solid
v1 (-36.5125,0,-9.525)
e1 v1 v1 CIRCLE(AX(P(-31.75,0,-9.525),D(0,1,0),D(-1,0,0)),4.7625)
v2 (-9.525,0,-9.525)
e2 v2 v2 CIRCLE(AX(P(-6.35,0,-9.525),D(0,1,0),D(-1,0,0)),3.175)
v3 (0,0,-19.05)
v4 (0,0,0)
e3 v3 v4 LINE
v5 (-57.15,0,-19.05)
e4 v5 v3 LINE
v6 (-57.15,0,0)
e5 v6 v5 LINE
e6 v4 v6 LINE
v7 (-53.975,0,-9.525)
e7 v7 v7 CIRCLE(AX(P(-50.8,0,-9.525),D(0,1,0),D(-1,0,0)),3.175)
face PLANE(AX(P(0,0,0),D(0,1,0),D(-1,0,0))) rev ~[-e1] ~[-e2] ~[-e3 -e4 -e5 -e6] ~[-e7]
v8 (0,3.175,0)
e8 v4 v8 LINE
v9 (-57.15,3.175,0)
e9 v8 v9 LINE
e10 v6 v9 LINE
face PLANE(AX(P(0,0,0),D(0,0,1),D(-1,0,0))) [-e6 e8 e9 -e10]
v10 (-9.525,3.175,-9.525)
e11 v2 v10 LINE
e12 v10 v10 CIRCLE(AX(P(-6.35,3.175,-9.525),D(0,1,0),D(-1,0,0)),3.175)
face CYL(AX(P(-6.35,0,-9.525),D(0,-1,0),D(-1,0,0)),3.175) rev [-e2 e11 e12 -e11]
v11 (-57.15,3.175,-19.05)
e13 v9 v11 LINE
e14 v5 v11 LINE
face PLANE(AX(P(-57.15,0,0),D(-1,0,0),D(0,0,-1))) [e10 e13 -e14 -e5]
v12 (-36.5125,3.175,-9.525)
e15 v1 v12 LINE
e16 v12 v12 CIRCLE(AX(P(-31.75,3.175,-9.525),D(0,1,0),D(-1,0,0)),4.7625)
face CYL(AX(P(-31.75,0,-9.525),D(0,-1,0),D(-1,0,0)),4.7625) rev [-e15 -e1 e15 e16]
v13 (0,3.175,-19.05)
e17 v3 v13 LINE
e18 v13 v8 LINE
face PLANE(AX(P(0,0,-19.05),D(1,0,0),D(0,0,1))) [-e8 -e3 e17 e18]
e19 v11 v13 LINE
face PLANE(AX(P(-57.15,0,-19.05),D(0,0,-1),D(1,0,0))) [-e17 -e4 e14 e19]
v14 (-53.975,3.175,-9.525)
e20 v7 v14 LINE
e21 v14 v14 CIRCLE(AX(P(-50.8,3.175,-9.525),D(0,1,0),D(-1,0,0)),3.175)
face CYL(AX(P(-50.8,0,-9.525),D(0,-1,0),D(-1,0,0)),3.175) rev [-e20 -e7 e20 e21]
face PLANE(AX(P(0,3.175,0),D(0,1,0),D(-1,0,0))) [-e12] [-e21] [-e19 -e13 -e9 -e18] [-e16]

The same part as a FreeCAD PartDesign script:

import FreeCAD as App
import Part
import Sketcher

V = App.Vector
Q = App.Units.Quantity


def add_polygon(sketch, points):
    """Adds a closed chain of lines whose ends are joined by coincident constraints."""
    first, n = sketch.GeometryCount, len(points)
    for a, b in zip(points, points[1:] + points[:1]):
        sketch.addGeometry(Part.LineSegment(App.Vector(*a, 0), App.Vector(*b, 0)), False)
    for i in range(n):
        sketch.addConstraint(Sketcher.Constraint("Coincident", first + i, 2, first + (i + 1) % n, 1))

doc = App.newDocument("Part")
body = doc.addObject("PartDesign::Body", "Body")

sketch1 = body.newObject("Sketcher::SketchObject", "Sketch")
sketch1.AttachmentSupport = (doc.getObject("XZ_Plane"), [""])
sketch1.MapMode = "FlatFace"
add_polygon(sketch1, [(-57.15, 0), (0, 0), (0, -19.05), (-57.15, -19.05)])
sketch1.addGeometry(Part.Circle(V(-6.35, -9.525, 0), V(0, 0, 1), 3.175), False)
sketch1.addGeometry(Part.Circle(V(-50.8, -9.525, 0), V(0, 0, 1), 3.175), False)
sketch1.addConstraint([
    Sketcher.Constraint("Horizontal", 0),
    Sketcher.Constraint("Vertical", 1),
    Sketcher.Constraint("Horizontal", 2),
    Sketcher.Constraint("Vertical", 3),
    Sketcher.Constraint("Coincident", 0, 2, -1, 1),
    Sketcher.Constraint("Equal", 4, 5),
    Sketcher.Constraint("Horizontal", 4, 3, 5, 3),
    Sketcher.Constraint("Diameter", 4, Q("0.25 in")),
    Sketcher.Constraint("DistanceX", 0, 1, 0, 2, Q("2.25 in")),
    Sketcher.Constraint("DistanceY", 1, 2, 1, 1, Q("0.75 in")),
    Sketcher.Constraint("DistanceX", 4, 3, -1, 1, Q("0.25 in")),
    Sketcher.Constraint("DistanceX", 2, 2, 5, 3, Q("0.25 in")),
    Sketcher.Constraint("DistanceY", 4, 3, -1, 1, Q("0.375 in")),
])
pad1 = body.newObject("PartDesign::Pad", "Pad")
pad1.Profile = sketch1
pad1.Length = Q("0.125 in")
pad1.Reversed = True

sketch2 = body.newObject("Sketcher::SketchObject", "Sketch001")
sketch2.AttachmentSupport = (doc.getObject("XZ_Plane"), [""])
sketch2.MapMode = "FlatFace"
sketch2.addGeometry(Part.Circle(V(-31.75, -9.525, 0), V(0, 0, 1), 4.7625), False)
sketch2.addConstraint([
    Sketcher.Constraint("Diameter", 0, Q("0.375 in")),
    Sketcher.Constraint("DistanceX", 0, 3, -1, 1, Q("1.25 in")),
    Sketcher.Constraint("DistanceY", 0, 3, -1, 1, Q("0.375 in")),
])
pocket1 = body.newObject("PartDesign::Pocket", "Pocket")
pocket1.Profile = sketch2
pocket1.Length = Q("0.125 in")

doc.recompute()
